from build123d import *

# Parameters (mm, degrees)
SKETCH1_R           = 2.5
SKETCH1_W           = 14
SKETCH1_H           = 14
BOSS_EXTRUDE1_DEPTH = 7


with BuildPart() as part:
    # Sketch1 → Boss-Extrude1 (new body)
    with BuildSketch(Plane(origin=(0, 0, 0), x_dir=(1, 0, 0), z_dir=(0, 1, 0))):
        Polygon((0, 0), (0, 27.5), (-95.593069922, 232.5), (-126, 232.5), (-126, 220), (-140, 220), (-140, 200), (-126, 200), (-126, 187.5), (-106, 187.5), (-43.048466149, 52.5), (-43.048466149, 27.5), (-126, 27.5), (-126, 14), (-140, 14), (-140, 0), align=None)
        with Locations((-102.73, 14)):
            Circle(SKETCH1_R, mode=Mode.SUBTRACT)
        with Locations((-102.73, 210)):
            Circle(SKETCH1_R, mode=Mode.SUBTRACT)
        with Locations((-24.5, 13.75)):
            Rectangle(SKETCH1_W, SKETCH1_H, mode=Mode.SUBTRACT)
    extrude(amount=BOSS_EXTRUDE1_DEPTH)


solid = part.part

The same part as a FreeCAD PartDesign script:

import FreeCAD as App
import Part
import Sketcher
Q = App.Units.Quantity

doc = App.newDocument("Part")
body = doc.addObject("PartDesign::Body", "Body")

sketch1 = body.newObject("Sketcher::SketchObject", "Sketch")
sketch1.AttachmentSupport = (doc.getObject("XZ_Plane"), [""])
sketch1.MapMode = "FlatFace"
sketch1.addGeometry(Part.LineSegment(App.Vector(0, 0, 0), App.Vector(0, -27.5, 0)), False)
sketch1.addGeometry(Part.LineSegment(App.Vector(0, -27.5, 0), App.Vector(-95.6, -232.5, 0)), False)
sketch1.addGeometry(Part.LineSegment(App.Vector(-95.6, -232.5, 0), App.Vector(-126, -232.5, 0)), False)
sketch1.addGeometry(Part.LineSegment(App.Vector(-126, -232.5, 0), App.Vector(-126, -220, 0)), False)
sketch1.addGeometry(Part.LineSegment(App.Vector(-126, -220, 0), App.Vector(-140, -220, 0)), False)
sketch1.addGeometry(Part.LineSegment(App.Vector(-140, -220, 0), App.Vector(-140, -200, 0)), False)
sketch1.addGeometry(Part.LineSegment(App.Vector(-140, -200, 0), App.Vector(-126, -200, 0)), False)
sketch1.addGeometry(Part.LineSegment(App.Vector(-126, -200, 0), App.Vector(-126, -187.5, 0)), False)
sketch1.addGeometry(Part.LineSegment(App.Vector(-126, -187.5, 0), App.Vector(-106, -187.5, 0)), False)
sketch1.addGeometry(Part.LineSegment(App.Vector(-106, -187.5, 0), App.Vector(-43, -52.5, 0)), False)
sketch1.addGeometry(Part.LineSegment(App.Vector(-43, -52.5, 0), App.Vector(-43, -27.5, 0)), False)
sketch1.addGeometry(Part.LineSegment(App.Vector(-43, -27.5, 0), App.Vector(-126, -27.5, 0)), False)
sketch1.addGeometry(Part.LineSegment(App.Vector(-126, -27.5, 0), App.Vector(-126, -14, 0)), False)
sketch1.addGeometry(Part.LineSegment(App.Vector(-126, -14, 0), App.Vector(-140, -14, 0)), False)
sketch1.addGeometry(Part.LineSegment(App.Vector(-140, -14, 0), App.Vector(-140, 0, 0)), False)
sketch1.addGeometry(Part.LineSegment(App.Vector(-140, 0, 0), App.Vector(0, 0, 0)), False)
sketch1.addGeometry(Part.Circle(App.Vector(-102.7, -14, 0), App.Vector(0, 0, 1), 2.5), False)
sketch1.addGeometry(Part.LineSegment(App.Vector(-17.5, -6.8, 0), App.Vector(-31.5, -6.8, 0)), False)
sketch1.addGeometry(Part.LineSegment(App.Vector(-31.5, -6.8, 0), App.Vector(-31.5, -20.8, 0)), False)
sketch1.addGeometry(Part.LineSegment(App.Vector(-31.5, -20.8, 0), App.Vector(-17.5, -20.8, 0)), False)
sketch1.addGeometry(Part.LineSegment(App.Vector(-17.5, -20.8, 0), App.Vector(-17.5, -6.8, 0)), False)
sketch1.addGeometry(Part.Circle(App.Vector(-102.7, -210, 0), App.Vector(0, 0, 1), 2.5), False)
sketch1.addConstraint(Sketcher.Constraint("Coincident", 0, 2, 1, 1))
sketch1.addConstraint(Sketcher.Constraint("Coincident", 1, 2, 2, 1))
sketch1.addConstraint(Sketcher.Constraint("Coincident", 2, 2, 3, 1))
sketch1.addConstraint(Sketcher.Constraint("Coincident", 3, 2, 4, 1))
sketch1.addConstraint(Sketcher.Constraint("Coincident", 4, 2, 5, 1))
sketch1.addConstraint(Sketcher.Constraint("Coincident", 5, 2, 6, 1))
sketch1.addConstraint(Sketcher.Constraint("Coincident", 6, 2, 7, 1))
sketch1.addConstraint(Sketcher.Constraint("Coincident", 7, 2, 8, 1))
sketch1.addConstraint(Sketcher.Constraint("Coincident", 8, 2, 9, 1))
sketch1.addConstraint(Sketcher.Constraint("Coincident", 9, 2, 10, 1))
sketch1.addConstraint(Sketcher.Constraint("Coincident", 10, 2, 11, 1))
sketch1.addConstraint(Sketcher.Constraint("Coincident", 11, 2, 12, 1))
sketch1.addConstraint(Sketcher.Constraint("Coincident", 12, 2, 13, 1))
sketch1.addConstraint(Sketcher.Constraint("Coincident", 13, 2, 14, 1))
sketch1.addConstraint(Sketcher.Constraint("Coincident", 14, 2, 15, 1))
sketch1.addConstraint(Sketcher.Constraint("Coincident", 15, 2, 0, 1))
sketch1.addConstraint(Sketcher.Constraint("Coincident", 17, 2, 18, 1))
sketch1.addConstraint(Sketcher.Constraint("Coincident", 18, 2, 19, 1))
sketch1.addConstraint(Sketcher.Constraint("Coincident", 19, 2, 20, 1))
sketch1.addConstraint(Sketcher.Constraint("Coincident", 20, 2, 17, 1))
sketch1.addConstraint(Sketcher.Constraint("Vertical", 0))
sketch1.addConstraint(Sketcher.Constraint("Horizontal", 2))
sketch1.addConstraint(Sketcher.Constraint("Vertical", 3))
sketch1.addConstraint(Sketcher.Constraint("Horizontal", 4))
sketch1.addConstraint(Sketcher.Constraint("Vertical", 5))
sketch1.addConstraint(Sketcher.Constraint("Horizontal", 6))
sketch1.addConstraint(Sketcher.Constraint("Vertical", 7))
sketch1.addConstraint(Sketcher.Constraint("Horizontal", 8))
sketch1.addConstraint(Sketcher.Constraint("Vertical", 10))
sketch1.addConstraint(Sketcher.Constraint("Horizontal", 11))
sketch1.addConstraint(Sketcher.Constraint("Vertical", 12))
sketch1.addConstraint(Sketcher.Constraint("Horizontal", 13))
sketch1.addConstraint(Sketcher.Constraint("Vertical", 14))
sketch1.addConstraint(Sketcher.Constraint("Horizontal", 15))
sketch1.addConstraint(Sketcher.Constraint("Horizontal", 17))
sketch1.addConstraint(Sketcher.Constraint("Vertical", 18))
sketch1.addConstraint(Sketcher.Constraint("Horizontal", 19))
sketch1.addConstraint(Sketcher.Constraint("Vertical", 20))
sketch1.addConstraint(Sketcher.Constraint("Coincident", 15, 2, -1, 1))
sketch1.addConstraint(Sketcher.Constraint("Equal", 16, 21))
sketch1.addConstraint(Sketcher.Constraint("Parallel", 1, 9))
sketch1.addConstraint(Sketcher.Constraint("Horizontal", 0, 2, 10, 2))
sketch1.addConstraint(Sketcher.Constraint("Horizontal", 16, 3, 12, 2))
sketch1.addConstraint(Sketcher.Constraint("Vertical", 16, 3, 21, 3))
sketch1.addConstraint(Sketcher.Constraint("Vertical", 3, 2, 6, 2))
sketch1.addConstraint(Sketcher.Constraint("Vertical", 7, 2, 11, 2))
sketch1.addConstraint(Sketcher.Constraint("Vertical", 5, 2, 13, 2))
sketch1.addConstraint(Sketcher.Constraint("Equal", 13, 17))
sketch1.addConstraint(Sketcher.Constraint("Equal", 8, 5))
sketch1.addConstraint(Sketcher.Constraint("Equal", 3, 7))
sketch1.addConstraint(Sketcher.Constraint("Equal", 19, 14))
sketch1.addConstraint(Sketcher.Constraint("Equal", 14, 18))
sketch1.addConstraint(Sketcher.Constraint("Diameter", 16, Q("5 mm")))
sketch1.addConstraint(Sketcher.Constraint("DistanceX", 4, 2, 4, 1, Q("14 mm")))
sketch1.addConstraint(Sketcher.Constraint("DistanceX", 8, 1, 8, 2, Q("20 mm")))
sketch1.addConstraint(Sketcher.Constraint("DistanceX", 15, 1, 15, 2, Q("140 mm")))
sketch1.addConstraint(Sketcher.Constraint("DistanceY", 10, 1, 10, 2, Q("25 mm")))
sketch1.addConstraint(Sketcher.Constraint("Angle", 1, Q("-115 deg")))
sketch1.addConstraint(Sketcher.Constraint("DistanceY", 0, 2, 0, 1, Q("27.5 mm")))
sketch1.addConstraint(Sketcher.Constraint("DistanceY", 3, 1, 3, 2, Q("12.5 mm")))
sketch1.addConstraint(Sketcher.Constraint("DistanceY", 21, 3, -1, 1, Q("210 mm")))
sketch1.addConstraint(Sketcher.Constraint("DistanceY", 3, 2, -1, 1, Q("220 mm")))
sketch1.addConstraint(Sketcher.Constraint("DistanceX", 17, 2, -1, 1, Q("31.5 mm")))
sketch1.addConstraint(Sketcher.Constraint("DistanceX", 16, 3, -1, 1, Q("102.73 mm")))
sketch1.addConstraint(Sketcher.Constraint("DistanceY", 17, 2, -1, 1, Q("6.75 mm")))
pad1 = body.newObject("PartDesign::Pad", "Pad")
pad1.Profile = sketch1
pad1.Length = 7
pad1.Reversed = True

doc.recompute()
